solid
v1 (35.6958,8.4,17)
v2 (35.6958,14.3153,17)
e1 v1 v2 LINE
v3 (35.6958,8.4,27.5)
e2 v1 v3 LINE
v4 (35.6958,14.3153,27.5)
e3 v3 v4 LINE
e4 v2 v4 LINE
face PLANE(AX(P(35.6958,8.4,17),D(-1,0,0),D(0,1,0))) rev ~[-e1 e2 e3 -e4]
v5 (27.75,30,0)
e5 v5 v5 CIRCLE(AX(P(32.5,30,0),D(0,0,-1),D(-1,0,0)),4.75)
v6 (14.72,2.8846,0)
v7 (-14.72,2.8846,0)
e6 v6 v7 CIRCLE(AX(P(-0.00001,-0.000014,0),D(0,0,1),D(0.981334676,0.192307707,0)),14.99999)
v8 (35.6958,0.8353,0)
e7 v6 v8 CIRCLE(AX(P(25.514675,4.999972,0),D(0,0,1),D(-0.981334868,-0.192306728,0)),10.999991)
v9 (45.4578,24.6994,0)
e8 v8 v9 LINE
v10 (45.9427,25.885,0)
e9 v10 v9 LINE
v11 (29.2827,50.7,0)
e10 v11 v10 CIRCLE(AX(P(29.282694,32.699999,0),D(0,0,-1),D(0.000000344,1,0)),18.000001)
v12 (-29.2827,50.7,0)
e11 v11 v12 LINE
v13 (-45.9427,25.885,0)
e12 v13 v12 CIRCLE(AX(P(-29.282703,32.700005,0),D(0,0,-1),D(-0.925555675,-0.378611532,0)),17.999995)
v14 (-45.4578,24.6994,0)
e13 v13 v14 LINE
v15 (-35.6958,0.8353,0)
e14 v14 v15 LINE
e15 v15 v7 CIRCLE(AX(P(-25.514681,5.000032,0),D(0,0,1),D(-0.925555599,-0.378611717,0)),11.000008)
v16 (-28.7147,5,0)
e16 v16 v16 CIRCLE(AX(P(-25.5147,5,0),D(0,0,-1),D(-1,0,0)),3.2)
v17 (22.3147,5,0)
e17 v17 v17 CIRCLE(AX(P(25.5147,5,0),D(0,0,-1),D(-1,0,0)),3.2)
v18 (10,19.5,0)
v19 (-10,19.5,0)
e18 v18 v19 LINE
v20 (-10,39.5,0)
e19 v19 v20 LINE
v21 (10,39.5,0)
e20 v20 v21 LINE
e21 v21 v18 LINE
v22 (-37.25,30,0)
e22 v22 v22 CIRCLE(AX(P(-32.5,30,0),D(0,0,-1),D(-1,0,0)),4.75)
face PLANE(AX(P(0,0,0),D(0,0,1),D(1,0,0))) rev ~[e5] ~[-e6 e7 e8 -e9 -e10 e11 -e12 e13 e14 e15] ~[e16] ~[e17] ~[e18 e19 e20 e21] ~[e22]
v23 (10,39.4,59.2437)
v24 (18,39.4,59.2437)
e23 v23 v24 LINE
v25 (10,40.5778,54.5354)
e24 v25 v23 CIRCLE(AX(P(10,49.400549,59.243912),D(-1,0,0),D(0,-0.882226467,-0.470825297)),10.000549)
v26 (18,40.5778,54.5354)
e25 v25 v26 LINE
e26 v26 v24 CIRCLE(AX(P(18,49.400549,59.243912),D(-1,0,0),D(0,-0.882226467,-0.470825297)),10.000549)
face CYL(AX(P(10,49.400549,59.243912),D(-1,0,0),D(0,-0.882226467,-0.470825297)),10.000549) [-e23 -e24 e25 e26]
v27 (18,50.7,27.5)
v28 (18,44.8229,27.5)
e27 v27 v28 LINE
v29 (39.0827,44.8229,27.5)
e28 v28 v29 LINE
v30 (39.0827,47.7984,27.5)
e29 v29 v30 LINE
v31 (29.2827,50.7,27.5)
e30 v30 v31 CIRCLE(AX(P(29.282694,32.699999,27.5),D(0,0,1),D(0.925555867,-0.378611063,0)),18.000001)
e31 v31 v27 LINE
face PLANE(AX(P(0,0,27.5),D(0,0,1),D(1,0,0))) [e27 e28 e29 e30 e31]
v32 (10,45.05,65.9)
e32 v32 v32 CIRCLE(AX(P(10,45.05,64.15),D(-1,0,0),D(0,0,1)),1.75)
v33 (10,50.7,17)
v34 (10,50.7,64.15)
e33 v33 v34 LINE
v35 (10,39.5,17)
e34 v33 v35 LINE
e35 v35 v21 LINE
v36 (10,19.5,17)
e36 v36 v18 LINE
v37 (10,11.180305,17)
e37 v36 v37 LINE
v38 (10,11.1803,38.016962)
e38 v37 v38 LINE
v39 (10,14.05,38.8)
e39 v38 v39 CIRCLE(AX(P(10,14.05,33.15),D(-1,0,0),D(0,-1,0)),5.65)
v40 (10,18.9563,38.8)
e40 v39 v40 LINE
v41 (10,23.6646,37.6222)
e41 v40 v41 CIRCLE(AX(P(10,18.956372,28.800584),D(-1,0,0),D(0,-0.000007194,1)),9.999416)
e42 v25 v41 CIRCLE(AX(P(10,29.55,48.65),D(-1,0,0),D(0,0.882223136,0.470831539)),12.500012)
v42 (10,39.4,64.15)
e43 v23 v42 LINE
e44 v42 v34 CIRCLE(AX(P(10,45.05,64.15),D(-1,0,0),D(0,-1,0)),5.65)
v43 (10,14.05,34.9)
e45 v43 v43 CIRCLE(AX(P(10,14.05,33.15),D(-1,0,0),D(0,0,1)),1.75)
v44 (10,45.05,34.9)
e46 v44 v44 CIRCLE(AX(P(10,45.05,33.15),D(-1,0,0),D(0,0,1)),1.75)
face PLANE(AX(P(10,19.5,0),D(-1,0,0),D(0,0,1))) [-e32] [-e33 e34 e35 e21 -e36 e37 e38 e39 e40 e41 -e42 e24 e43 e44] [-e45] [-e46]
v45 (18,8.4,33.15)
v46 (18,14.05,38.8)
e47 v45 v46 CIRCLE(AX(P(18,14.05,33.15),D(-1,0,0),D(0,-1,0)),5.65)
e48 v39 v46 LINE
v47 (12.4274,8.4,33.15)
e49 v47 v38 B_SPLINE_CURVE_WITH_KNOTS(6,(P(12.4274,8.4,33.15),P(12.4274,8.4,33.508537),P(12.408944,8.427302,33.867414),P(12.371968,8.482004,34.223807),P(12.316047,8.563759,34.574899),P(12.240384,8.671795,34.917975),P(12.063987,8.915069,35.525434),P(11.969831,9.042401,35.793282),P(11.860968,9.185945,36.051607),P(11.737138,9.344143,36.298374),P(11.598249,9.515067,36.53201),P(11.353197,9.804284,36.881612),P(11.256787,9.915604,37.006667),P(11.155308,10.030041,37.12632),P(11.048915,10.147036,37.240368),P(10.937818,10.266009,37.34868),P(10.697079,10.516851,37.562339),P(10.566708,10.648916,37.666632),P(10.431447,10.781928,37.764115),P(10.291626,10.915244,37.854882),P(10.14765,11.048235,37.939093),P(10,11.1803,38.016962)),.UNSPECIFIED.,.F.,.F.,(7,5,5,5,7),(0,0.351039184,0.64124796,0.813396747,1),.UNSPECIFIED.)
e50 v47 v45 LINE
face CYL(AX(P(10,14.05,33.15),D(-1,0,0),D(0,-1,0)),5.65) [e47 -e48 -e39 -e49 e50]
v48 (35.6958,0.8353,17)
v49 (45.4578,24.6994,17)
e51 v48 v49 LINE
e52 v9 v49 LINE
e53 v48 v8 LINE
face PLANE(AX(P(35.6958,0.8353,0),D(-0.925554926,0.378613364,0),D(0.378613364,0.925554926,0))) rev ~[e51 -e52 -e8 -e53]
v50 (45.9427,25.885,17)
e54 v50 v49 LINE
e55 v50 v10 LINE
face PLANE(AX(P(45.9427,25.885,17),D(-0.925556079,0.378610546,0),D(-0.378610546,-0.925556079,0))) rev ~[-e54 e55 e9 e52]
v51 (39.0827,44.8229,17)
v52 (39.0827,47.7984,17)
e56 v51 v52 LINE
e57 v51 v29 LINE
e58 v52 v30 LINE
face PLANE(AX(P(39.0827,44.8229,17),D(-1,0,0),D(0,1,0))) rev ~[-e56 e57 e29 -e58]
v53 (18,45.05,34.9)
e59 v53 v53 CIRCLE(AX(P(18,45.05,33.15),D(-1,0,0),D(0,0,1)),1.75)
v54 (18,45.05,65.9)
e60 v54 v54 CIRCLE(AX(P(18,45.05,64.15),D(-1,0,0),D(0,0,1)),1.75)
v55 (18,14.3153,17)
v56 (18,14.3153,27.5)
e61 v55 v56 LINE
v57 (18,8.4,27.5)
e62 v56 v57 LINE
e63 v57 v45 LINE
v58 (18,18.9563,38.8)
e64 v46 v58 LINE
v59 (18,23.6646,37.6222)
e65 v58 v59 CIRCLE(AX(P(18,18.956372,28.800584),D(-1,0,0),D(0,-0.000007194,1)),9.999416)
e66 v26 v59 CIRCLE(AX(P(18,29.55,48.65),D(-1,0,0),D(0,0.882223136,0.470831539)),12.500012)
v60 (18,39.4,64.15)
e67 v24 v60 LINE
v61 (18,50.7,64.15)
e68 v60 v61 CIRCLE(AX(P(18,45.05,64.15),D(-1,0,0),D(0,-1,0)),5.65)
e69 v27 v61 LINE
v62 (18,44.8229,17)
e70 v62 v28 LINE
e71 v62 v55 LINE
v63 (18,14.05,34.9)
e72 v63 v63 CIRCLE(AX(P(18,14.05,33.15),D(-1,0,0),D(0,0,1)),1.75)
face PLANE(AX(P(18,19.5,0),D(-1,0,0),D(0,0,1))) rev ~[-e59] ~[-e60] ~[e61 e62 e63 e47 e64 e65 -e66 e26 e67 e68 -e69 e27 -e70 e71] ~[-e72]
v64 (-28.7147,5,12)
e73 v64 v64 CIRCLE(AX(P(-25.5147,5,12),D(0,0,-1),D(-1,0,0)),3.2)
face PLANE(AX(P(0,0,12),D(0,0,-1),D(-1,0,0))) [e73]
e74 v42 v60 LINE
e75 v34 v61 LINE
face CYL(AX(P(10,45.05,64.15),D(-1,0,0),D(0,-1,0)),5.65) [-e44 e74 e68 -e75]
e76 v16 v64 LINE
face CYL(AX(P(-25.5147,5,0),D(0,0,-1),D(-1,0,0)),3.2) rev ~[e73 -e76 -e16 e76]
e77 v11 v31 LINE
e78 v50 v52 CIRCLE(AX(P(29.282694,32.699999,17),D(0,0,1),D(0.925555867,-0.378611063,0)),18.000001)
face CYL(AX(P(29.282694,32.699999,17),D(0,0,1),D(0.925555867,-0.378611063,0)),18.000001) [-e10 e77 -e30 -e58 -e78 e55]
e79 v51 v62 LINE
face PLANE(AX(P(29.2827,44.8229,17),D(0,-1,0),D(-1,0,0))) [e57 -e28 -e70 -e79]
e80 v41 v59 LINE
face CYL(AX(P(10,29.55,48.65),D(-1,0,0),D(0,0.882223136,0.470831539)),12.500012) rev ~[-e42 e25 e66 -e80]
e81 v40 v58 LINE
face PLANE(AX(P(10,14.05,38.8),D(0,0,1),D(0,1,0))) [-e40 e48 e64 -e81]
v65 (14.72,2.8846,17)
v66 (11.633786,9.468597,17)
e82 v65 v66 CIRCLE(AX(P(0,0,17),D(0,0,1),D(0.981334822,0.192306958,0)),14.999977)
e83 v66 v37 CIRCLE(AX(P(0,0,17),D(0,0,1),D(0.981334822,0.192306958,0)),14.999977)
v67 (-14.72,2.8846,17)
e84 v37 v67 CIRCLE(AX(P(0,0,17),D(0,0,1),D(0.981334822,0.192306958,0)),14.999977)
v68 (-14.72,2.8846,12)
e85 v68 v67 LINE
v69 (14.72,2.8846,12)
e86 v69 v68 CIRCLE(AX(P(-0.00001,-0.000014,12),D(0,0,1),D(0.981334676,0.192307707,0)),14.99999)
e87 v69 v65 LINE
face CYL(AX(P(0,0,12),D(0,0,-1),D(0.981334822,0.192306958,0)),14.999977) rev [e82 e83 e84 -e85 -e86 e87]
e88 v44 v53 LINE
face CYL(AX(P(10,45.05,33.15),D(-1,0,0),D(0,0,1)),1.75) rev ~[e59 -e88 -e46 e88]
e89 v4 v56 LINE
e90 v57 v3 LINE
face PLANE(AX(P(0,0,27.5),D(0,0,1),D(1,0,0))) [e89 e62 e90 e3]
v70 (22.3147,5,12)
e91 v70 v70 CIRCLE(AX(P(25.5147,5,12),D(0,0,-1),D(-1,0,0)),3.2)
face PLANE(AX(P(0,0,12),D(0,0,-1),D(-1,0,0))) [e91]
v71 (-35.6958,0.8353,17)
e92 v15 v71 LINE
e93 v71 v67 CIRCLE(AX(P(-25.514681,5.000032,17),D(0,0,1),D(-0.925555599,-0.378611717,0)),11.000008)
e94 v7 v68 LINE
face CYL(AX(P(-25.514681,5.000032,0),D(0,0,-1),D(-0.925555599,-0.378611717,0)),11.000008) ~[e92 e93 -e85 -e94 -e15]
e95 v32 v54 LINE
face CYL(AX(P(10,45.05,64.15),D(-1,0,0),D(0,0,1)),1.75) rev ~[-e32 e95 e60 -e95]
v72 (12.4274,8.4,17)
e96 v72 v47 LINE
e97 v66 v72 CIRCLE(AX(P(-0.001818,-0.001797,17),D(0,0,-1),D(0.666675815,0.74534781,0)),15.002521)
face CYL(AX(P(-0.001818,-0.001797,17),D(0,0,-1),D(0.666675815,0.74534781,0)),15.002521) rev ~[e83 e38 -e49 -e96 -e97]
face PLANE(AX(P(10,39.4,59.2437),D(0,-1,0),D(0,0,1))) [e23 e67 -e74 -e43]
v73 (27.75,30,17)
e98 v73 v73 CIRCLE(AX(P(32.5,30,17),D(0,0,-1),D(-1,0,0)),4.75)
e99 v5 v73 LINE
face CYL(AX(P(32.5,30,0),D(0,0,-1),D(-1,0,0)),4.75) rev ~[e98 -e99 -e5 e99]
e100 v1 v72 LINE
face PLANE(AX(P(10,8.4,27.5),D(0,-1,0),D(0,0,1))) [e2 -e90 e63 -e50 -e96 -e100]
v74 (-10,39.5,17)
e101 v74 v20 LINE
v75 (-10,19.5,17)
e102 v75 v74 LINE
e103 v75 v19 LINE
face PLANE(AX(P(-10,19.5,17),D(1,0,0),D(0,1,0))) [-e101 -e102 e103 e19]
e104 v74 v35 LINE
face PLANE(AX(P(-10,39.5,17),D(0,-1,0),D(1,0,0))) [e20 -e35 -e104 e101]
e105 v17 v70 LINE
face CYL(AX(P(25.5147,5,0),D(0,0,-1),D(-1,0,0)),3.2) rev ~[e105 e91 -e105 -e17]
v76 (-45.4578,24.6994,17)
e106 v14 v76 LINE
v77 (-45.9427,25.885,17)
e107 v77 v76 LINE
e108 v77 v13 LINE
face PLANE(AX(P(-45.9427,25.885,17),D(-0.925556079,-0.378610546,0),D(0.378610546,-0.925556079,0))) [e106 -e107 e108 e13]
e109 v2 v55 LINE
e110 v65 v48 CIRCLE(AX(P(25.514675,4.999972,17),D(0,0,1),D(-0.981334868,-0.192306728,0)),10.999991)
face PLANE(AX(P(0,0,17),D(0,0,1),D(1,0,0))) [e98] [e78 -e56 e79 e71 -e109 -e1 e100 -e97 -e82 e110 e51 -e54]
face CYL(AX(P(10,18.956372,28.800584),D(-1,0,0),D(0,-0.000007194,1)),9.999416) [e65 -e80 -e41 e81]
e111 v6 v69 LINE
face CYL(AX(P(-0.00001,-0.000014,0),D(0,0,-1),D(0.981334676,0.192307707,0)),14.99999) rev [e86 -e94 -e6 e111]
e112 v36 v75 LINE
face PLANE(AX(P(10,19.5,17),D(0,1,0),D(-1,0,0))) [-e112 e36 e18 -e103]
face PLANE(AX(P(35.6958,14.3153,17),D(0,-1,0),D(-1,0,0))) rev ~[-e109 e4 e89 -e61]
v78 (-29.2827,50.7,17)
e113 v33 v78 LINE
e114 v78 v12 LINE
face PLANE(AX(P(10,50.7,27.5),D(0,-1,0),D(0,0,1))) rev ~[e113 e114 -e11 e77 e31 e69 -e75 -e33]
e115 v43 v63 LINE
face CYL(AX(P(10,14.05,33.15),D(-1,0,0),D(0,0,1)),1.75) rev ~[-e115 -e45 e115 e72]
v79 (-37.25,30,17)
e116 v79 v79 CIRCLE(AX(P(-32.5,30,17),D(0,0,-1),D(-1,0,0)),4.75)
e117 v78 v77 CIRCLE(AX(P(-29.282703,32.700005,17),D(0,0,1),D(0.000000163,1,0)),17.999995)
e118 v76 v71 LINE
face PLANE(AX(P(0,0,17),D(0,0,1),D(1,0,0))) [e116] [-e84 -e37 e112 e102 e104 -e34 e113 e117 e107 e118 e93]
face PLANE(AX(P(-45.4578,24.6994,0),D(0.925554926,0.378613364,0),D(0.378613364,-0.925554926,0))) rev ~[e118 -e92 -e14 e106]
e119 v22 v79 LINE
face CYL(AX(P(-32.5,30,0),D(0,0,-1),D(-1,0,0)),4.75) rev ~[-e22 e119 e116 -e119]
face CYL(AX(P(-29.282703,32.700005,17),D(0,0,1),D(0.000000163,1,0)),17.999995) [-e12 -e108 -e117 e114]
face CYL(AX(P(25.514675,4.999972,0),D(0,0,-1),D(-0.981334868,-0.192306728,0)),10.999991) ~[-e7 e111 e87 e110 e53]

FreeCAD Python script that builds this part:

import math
import FreeCAD as App
import Part
import Sketcher
from FreeCAD import Vector

doc = App.newDocument("Part")
body = doc.addObject("PartDesign::Body", "Body")

# Sketch on XY plane
sketch1 = body.newObject("Sketcher::SketchObject", "Sketch")
sketch1.AttachmentSupport = (doc.getObject("XY_Plane"), [""])
sketch1.MapMode = "FlatFace"
sketch1.addGeometry([
    Part.LineSegment(Vector(35.7, 0.8, 0), Vector(45.5, 24.7, 0)),  # 0
    Part.ArcOfCircle(Part.Circle(Vector(32.5, 30, 0), Vector(0, 0, 1), 14), math.radians(-22), math.radians(90)),  # 1
    Part.LineSegment(Vector(32.5, 44, 0), Vector(-32.5, 44, 0)),  # 2
    Part.ArcOfCircle(Part.Circle(Vector(-32.5, 30, 0), Vector(0, 0, 1), 14), math.radians(90), math.radians(202)),  # 3
    Part.LineSegment(Vector(-45.5, 24.7, 0), Vector(-35.7, 0.8, 0)),  # 4
    Part.ArcOfCircle(Part.Circle(Vector(-25.5, 5, 0), Vector(0, 0, 1), 11), math.radians(-158), math.radians(-11)),  # 5
    Part.ArcOfCircle(Part.Circle(Vector(0, 0, 0), Vector(0, 0, 1), 15), math.radians(11), math.radians(169)),  # 6
    Part.ArcOfCircle(Part.Circle(Vector(25.5, 5, 0), Vector(0, 0, 1), 11), math.radians(-169), math.radians(-22)),  # 7
    Part.Circle(Vector(-32.5, 30, 0), Vector(0, 0, 1), 5),  # 8
    Part.Circle(Vector(32.5, 30, 0), Vector(0, 0, 1), 5),  # 9
    Part.Circle(Vector(-25.5, 5, 0), Vector(0, 0, 1), 3),  # 10
    Part.Circle(Vector(25.5, 5, 0), Vector(0, 0, 1), 3),  # 11
], False)
sketch1.addConstraint([
    Sketcher.Constraint("Tangent", 0, 2, 1, 1),
    Sketcher.Constraint("Tangent", 1, 2, 2, 1),
    Sketcher.Constraint("Tangent", 2, 2, 3, 1),
    Sketcher.Constraint("Tangent", 3, 2, 4, 1),
    Sketcher.Constraint("Tangent", 4, 2, 5, 1),
    Sketcher.Constraint("Tangent", 5, 2, 6, 2),
    Sketcher.Constraint("Tangent", 6, 1, 7, 1),
    Sketcher.Constraint("Tangent", 7, 2, 0, 1),
    Sketcher.Constraint("Horizontal", 2),
    Sketcher.Constraint("Coincident", 6, 3, -1, 1),
    Sketcher.Constraint("Coincident", 8, 3, 3, 3),
    Sketcher.Constraint("Coincident", 9, 3, 1, 3),
    Sketcher.Constraint("Coincident", 10, 3, 5, 3),
    Sketcher.Constraint("Coincident", 11, 3, 7, 3),
    Sketcher.Constraint("Equal", 1, 3),
    Sketcher.Constraint("Equal", 5, 7),
    Sketcher.Constraint("Equal", 8, 9),
    Sketcher.Constraint("Equal", 10, 11),
    Sketcher.Constraint("Symmetric", 0, 2, 3, 2, -2),
    Sketcher.Constraint("Diameter", 8, 10.0),
    Sketcher.Constraint("Diameter", 10, 6.0),
    Sketcher.Constraint("Radius", 1, 14.0),
    Sketcher.Constraint("Radius", 6, 15.0),
    Sketcher.Constraint("DistanceX", 2, 2, 2, 1, 65.0),
    Sketcher.Constraint("DistanceY", -1, 1, 1, 3, 30.0),
    Sketcher.Constraint("Radius", 5, 11.0),
    Sketcher.Constraint("DistanceY", -1, 1, 5, 3, 5.0),
])
pad1 = body.newObject("PartDesign::Pad", "Pad")
pad1.Profile = sketch1
pad1.Length = 12

# Sketch on XY plane
sketch2 = body.newObject("Sketcher::SketchObject", "Sketch001")
sketch2.AttachmentSupport = (doc.getObject("XY_Plane"), [""])
sketch2.MapMode = "FlatFace"
sketch2.AttachmentOffset = App.Placement(Vector(0, 0, 12), App.Rotation())
sketch2.addGeometry([
    Part.ArcOfCircle(Part.Circle(Vector(-32, 30, 0), Vector(0, 0, 1), 14), math.radians(90), math.radians(202)),  # 0
    Part.LineSegment(Vector(-45, 25, 0), Vector(-36, 1, 0)),  # 1
    Part.ArcOfCircle(Part.Circle(Vector(-26, 5, 0), Vector(0, 0, 1), 11), math.radians(-158), math.radians(-11)),  # 2
    Part.ArcOfCircle(Part.Circle(Vector(0, 0, 0), Vector(0, 0, 1), 15), math.radians(11), math.radians(169)),  # 3
    Part.ArcOfCircle(Part.Circle(Vector(26, 5, 0), Vector(0, 0, 1), 11), math.radians(-169), math.radians(-22)),  # 4
    Part.LineSegment(Vector(36, 1, 0), Vector(45, 25, 0)),  # 5
    Part.ArcOfCircle(Part.Circle(Vector(32, 30, 0), Vector(0, 0, 1), 14), math.radians(-22), math.radians(90)),  # 6
    Part.LineSegment(Vector(32, 44, 0), Vector(-32, 44, 0)),  # 7
    Part.Circle(Vector(32, 30, 0), Vector(0, 0, 1), 5),  # 8
    Part.Circle(Vector(-32, 30, 0), Vector(0, 0, 1), 5),  # 9
], False)
sketch2.addConstraint([
    Sketcher.Constraint("Tangent", 0, 2, 1, 1),
    Sketcher.Constraint("Tangent", 1, 2, 2, 1),
    Sketcher.Constraint("Tangent", 2, 2, 3, 2),
    Sketcher.Constraint("Tangent", 3, 1, 4, 1),
    Sketcher.Constraint("Tangent", 4, 2, 5, 1),
    Sketcher.Constraint("Tangent", 5, 2, 6, 1),
    Sketcher.Constraint("Tangent", 6, 2, 7, 1),
    Sketcher.Constraint("Tangent", 7, 2, 0, 1),
    Sketcher.Constraint("Horizontal", 7),
    Sketcher.Constraint("Coincident", 3, 3, -1, 1),
    Sketcher.Constraint("Coincident", 8, 3, 6, 3),
    Sketcher.Constraint("Coincident", 9, 3, 0, 3),
    Sketcher.Constraint("Equal", 2, 4),
    Sketcher.Constraint("Equal", 0, 6),
    Sketcher.Constraint("Equal", 8, 9),
    Sketcher.Constraint("Symmetric", 1, 2, 4, 2, -2),
    Sketcher.Constraint("Diameter", 8, 10.0),
    Sketcher.Constraint("Radius", 0, 14.0),
    Sketcher.Constraint("Radius", 2, 11.0),
    Sketcher.Constraint("Radius", 3, 15.0),
    Sketcher.Constraint("DistanceX", 7, 2, 7, 1, 65.0),
    Sketcher.Constraint("DistanceY", -1, 1, 0, 3, 30.0),
    Sketcher.Constraint("DistanceY", -1, 1, 2, 3, 5.0),
])
pad2 = body.newObject("PartDesign::Pad", "Pad001")
pad2.Profile = sketch2
pad2.Length = 5

# Sketch on XY plane
sketch3 = body.newObject("Sketcher::SketchObject", "Sketch002")
sketch3.AttachmentSupport = (doc.getObject("XY_Plane"), [""])
sketch3.MapMode = "FlatFace"
sketch3.AttachmentOffset = App.Placement(Vector(0, 0, 17), App.Rotation())
sketch3.addGeometry([
    Part.LineSegment(Vector(10, 40, 0), Vector(-10, 40, 0)),
    Part.LineSegment(Vector(-10, 40, 0), Vector(-10, 20, 0)),
    Part.LineSegment(Vector(-10, 20, 0), Vector(10, 20, 0)),
    Part.LineSegment(Vector(10, 20, 0), Vector(10, 40, 0)),
], False)
sketch3.addConstraint([
    Sketcher.Constraint("Coincident", 0, 2, 1, 1),
    Sketcher.Constraint("Coincident", 1, 2, 2, 1),
    Sketcher.Constraint("Coincident", 2, 2, 3, 1),
    Sketcher.Constraint("Coincident", 3, 2, 0, 1),
    Sketcher.Constraint("Horizontal", 0),
    Sketcher.Constraint("Vertical", 1),
    Sketcher.Constraint("Horizontal", 2),
    Sketcher.Constraint("Vertical", 3),
    Sketcher.Constraint("Equal", 2, 1),
    Sketcher.Constraint("DistanceX", 0, 2, 0, 1, 20.0),
    Sketcher.Constraint("DistanceX", 0, 2, -1, 1, 10.0),
    Sketcher.Constraint("DistanceY", -1, 1, 0, 2, 39.5),
])
pocket1 = body.newObject("PartDesign::Pocket", "Pocket")
pocket1.Profile = sketch3
pocket1.Length = 17

# Sketch on XY plane
sketch4 = body.newObject("Sketcher::SketchObject", "Sketch003")
sketch4.AttachmentSupport = (doc.getObject("XY_Plane"), [""])
sketch4.MapMode = "FlatFace"
sketch4.AttachmentOffset = App.Placement(Vector(0, 0, 17), App.Rotation())
sketch4.addGeometry([
    Part.LineSegment(Vector(-45.9, 25.9, 0), Vector(-45.5, 24.7, 0)),  # 0
    Part.ArcOfCircle(Part.Circle(Vector(-32.5, 30, 0), Vector(0, 0, 1), 14), math.radians(90), math.radians(202)),  # 1
    Part.LineSegment(Vector(-32.5, 44, 0), Vector(32.5, 44, 0)),  # 2
    Part.ArcOfCircle(Part.Circle(Vector(32.5, 30, 0), Vector(0, 0, 1), 14), math.radians(-22), math.radians(90)),  # 3
    Part.LineSegment(Vector(45.5, 24.7, 0), Vector(45.9, 25.9, 0)),  # 4
    Part.ArcOfCircle(Part.Circle(Vector(29.3, 32.7, 0), Vector(0, 0, 1), 18), math.radians(-22), math.radians(90)),  # 5
    Part.LineSegment(Vector(29.3, 50.7, 0), Vector(-29.3, 50.7, 0)),  # 6
    Part.ArcOfCircle(Part.Circle(Vector(-29.3, 32.7, 0), Vector(0, 0, 1), 18), math.radians(90), math.radians(202)),  # 7
], False)
sketch4.addConstraint([
    Sketcher.Constraint("Tangent", 0, 2, 1, 2),
    Sketcher.Constraint("Tangent", 1, 1, 2, 1),
    Sketcher.Constraint("Tangent", 2, 2, 3, 2),
    Sketcher.Constraint("Tangent", 3, 1, 4, 1),
    Sketcher.Constraint("Tangent", 4, 2, 5, 1),
    Sketcher.Constraint("Tangent", 5, 2, 6, 1),
    Sketcher.Constraint("Tangent", 6, 2, 7, 1),
    Sketcher.Constraint("Tangent", 7, 2, 0, 1),
    Sketcher.Constraint("Horizontal", 2),
    Sketcher.Constraint("Horizontal", 6),
    Sketcher.Constraint("Equal", 1, 3),
    Sketcher.Constraint("Equal", 5, 7),
    Sketcher.Constraint("Symmetric", 0, 2, 3, 1, -2),
    Sketcher.Constraint("Radius", 5, 18.0),
    Sketcher.Constraint("Radius", 1, 14.0),
    Sketcher.Constraint("DistanceY", 2, 2, 5, 2, 6.7),
    Sketcher.Constraint("DistanceX", 2, 1, 2, 2, 65.0),
    Sketcher.Constraint("DistanceY", -1, 1, 1, 3, 30.0),
    Sketcher.Constraint("DistanceX", 5, 3, 4, 2, 16.66),
])
pad3 = body.newObject("PartDesign::Pad", "Pad002")
pad3.Profile = sketch4
pad3.Length = 17
pad3.Reversed = True

# Sketch on XY plane
sketch5 = body.newObject("Sketcher::SketchObject", "Sketch004")
sketch5.AttachmentSupport = (doc.getObject("XY_Plane"), [""])
sketch5.MapMode = "FlatFace"
sketch5.AttachmentOffset = App.Placement(Vector(0, 0, 17), App.Rotation())
sketch5.addGeometry([
    Part.LineSegment(Vector(10, 8.4, 0), Vector(35.7, 8.4, 0)),  # 0
    Part.LineSegment(Vector(35.7, 8.4, 0), Vector(35.7, 14.3, 0)),  # 1
    Part.LineSegment(Vector(35.7, 14.3, 0), Vector(18, 14.3, 0)),  # 2
    Part.LineSegment(Vector(18, 14.3, 0), Vector(18, 44.8, 0)),  # 3
    Part.LineSegment(Vector(18, 44.8, 0), Vector(39.1, 44.8, 0)),  # 4
    Part.LineSegment(Vector(39.1, 44.8, 0), Vector(39.1, 47.8, 0)),  # 5
    Part.ArcOfCircle(Part.Circle(Vector(29.3, 32.7, 0), Vector(0, 0, 1), 18), math.radians(57), math.radians(90)),  # 6
    Part.LineSegment(Vector(29.3, 50.7, 0), Vector(10, 50.7, 0)),  # 7
    Part.LineSegment(Vector(10, 50.7, 0), Vector(10, 8.4, 0)),  # 8
], False)
sketch5.addConstraint([
    Sketcher.Constraint("Coincident", 0, 2, 1, 1),
    Sketcher.Constraint("Coincident", 1, 2, 2, 1),
    Sketcher.Constraint("Coincident", 2, 2, 3, 1),
    Sketcher.Constraint("Coincident", 3, 2, 4, 1),
    Sketcher.Constraint("Coincident", 4, 2, 5, 1),
    Sketcher.Constraint("Coincident", 5, 2, 6, 1),
    Sketcher.Constraint("Tangent", 6, 2, 7, 1),
    Sketcher.Constraint("Coincident", 7, 2, 8, 1),
    Sketcher.Constraint("Coincident", 8, 2, 0, 1),
    Sketcher.Constraint("Horizontal", 0),
    Sketcher.Constraint("Vertical", 1),
    Sketcher.Constraint("Horizontal", 2),
    Sketcher.Constraint("Vertical", 3),
    Sketcher.Constraint("Horizontal", 4),
    Sketcher.Constraint("Vertical", 5),
    Sketcher.Constraint("Horizontal", 7),
    Sketcher.Constraint("Vertical", 8),
    Sketcher.Constraint("DistanceY", 8, 2, 8, 1, 42.3),
    Sketcher.Constraint("Radius", 6, 18.0),
    Sketcher.Constraint("DistanceX", 7, 2, 3, 2, 8.0),
    Sketcher.Constraint("DistanceX", -1, 1, 2, 2, 18.0),
    Sketcher.Constraint("DistanceY", -1, 1, 6, 3, 32.7),
    Sketcher.Constraint("DistanceX", 6, 3, 4, 2, 9.8),
    Sketcher.Constraint("DistanceX", 0, 1, 0, 2, 25.6958),
    Sketcher.Constraint("DistanceX", 4, 1, 4, 2, 21.0827),
    Sketcher.Constraint("DistanceY", 1, 1, 1, 2, 5.9153),
    Sketcher.Constraint("DistanceY", 3, 1, 3, 2, 30.5076),
])
pad4 = body.newObject("PartDesign::Pad", "Pad003")
pad4.Profile = sketch5
pad4.Length = 10.5

# Sketch on YZ plane
sketch6 = body.newObject("Sketcher::SketchObject", "Sketch005")
sketch6.AttachmentSupport = (doc.getObject("YZ_Plane"), [""])
sketch6.MapMode = "FlatFace"
sketch6.AttachmentOffset = App.Placement(Vector(0, 0, 10), App.Rotation())
sketch6.addGeometry([
    Part.LineSegment(Vector(50.7, 64.2, 0), Vector(50.7, 27.5, 0)),  # 0
    Part.LineSegment(Vector(50.7, 27.5, 0), Vector(8.4, 27.5, 0)),  # 1
    Part.LineSegment(Vector(8.4, 27.5, 0), Vector(8.4, 33.1, 0)),  # 2
    Part.ArcOfCircle(Part.Circle(Vector(14.1, 33.1, 0), Vector(0, 0, 1), 5.6), math.radians(90), math.radians(180)),  # 3
    Part.LineSegment(Vector(14.1, 38.8, 0), Vector(19, 38.8, 0)),  # 4
    Part.ArcOfCircle(Part.Circle(Vector(19, 28.8, 0), Vector(0, 0, 1), 10), math.radians(62), math.radians(90)),  # 5
    Part.ArcOfCircle(Part.Circle(Vector(29.6, 48.6, 0), Vector(0, 0, 1), 12.5), math.radians(-118), math.radians(28)),  # 6
    Part.ArcOfCircle(Part.Circle(Vector(49.4, 59.2, 0), Vector(0, 0, 1), 10), math.radians(180), math.radians(208)),  # 7
    Part.LineSegment(Vector(39.4, 59.2, 0), Vector(39.4, 64.2, 0)),  # 8
    Part.ArcOfCircle(Part.Circle(Vector(45, 64.2, 0), Vector(0, 0, 1), 5.7), math.radians(0), math.radians(180)),  # 9
    Part.Circle(Vector(14.1, 33.1, 0), Vector(0, 0, 1), 1.8),  # 10
    Part.Circle(Vector(45, 33.1, 0), Vector(0, 0, 1), 1.8),  # 11
    Part.Circle(Vector(45, 64.2, 0), Vector(0, 0, 1), 1.8),  # 12
], False)
sketch6.addConstraint([
    Sketcher.Constraint("Coincident", 0, 2, 1, 1),
    Sketcher.Constraint("Coincident", 1, 2, 2, 1),
    Sketcher.Constraint("Tangent", 2, 2, 3, 2),
    Sketcher.Constraint("Tangent", 3, 1, 4, 1),
    Sketcher.Constraint("Tangent", 4, 2, 5, 2),
    Sketcher.Constraint("Tangent", 5, 1, 6, 1),
    Sketcher.Constraint("Tangent", 6, 2, 7, 2),
    Sketcher.Constraint("Tangent", 7, 1, 8, 1),
    Sketcher.Constraint("Tangent", 8, 2, 9, 2),
    Sketcher.Constraint("Tangent", 9, 1, 0, 1),
    Sketcher.Constraint("Vertical", 0),
    Sketcher.Constraint("Horizontal", 1),
    Sketcher.Constraint("Vertical", 2),
    Sketcher.Constraint("Horizontal", 4),
    Sketcher.Constraint("Vertical", 8),
    Sketcher.Constraint("Coincident", 10, 3, 3, 3),
    Sketcher.Constraint("Coincident", 12, 3, 9, 3),
    Sketcher.Constraint("Equal", 5, 7),
    Sketcher.Constraint("Equal", 3, 9),
    Sketcher.Constraint("Equal", 10, 11),
    Sketcher.Constraint("Equal", 11, 12),
    Sketcher.Constraint("Horizontal", 10, 3, 11, 3),
    Sketcher.Constraint("Vertical", 9, 3, 11, 3),
    Sketcher.Constraint("Equal", 4, 8),
    Sketcher.Constraint("Radius", 5, 10.0),
    Sketcher.Constraint("Diameter", 10, 3.5),
    Sketcher.Constraint("Radius", 6, 12.5),
    Sketcher.Constraint("Radius", 3, 5.65),
    Sketcher.Constraint("DistanceX", 1, 2, 1, 1, 42.3),
    Sketcher.Constraint("DistanceY", 3, 3, 9, 3, 31.0),
    Sketcher.Constraint("DistanceY", 2, 1, 2, 2, 5.65),
    Sketcher.Constraint("DistanceX", 6, 3, 0, 2, 21.15),
    Sketcher.Constraint("DistanceY", -1, 1, 5, 3, 28.8),
    Sketcher.Constraint("DistanceX", -1, 1, 7, 3, 49.4),
])
pad5 = body.newObject("PartDesign::Pad", "Pad004")
pad5.Profile = sketch6
pad5.Length = 8

# Sketch on XY plane
sketch7 = body.newObject("Sketcher::SketchObject", "Sketch006")
sketch7.AttachmentSupport = (doc.getObject("XY_Plane"), [""])
sketch7.MapMode = "FlatFace"
sketch7.AttachmentOffset = App.Placement(Vector(0, 0, 17), App.Rotation())
sketch7.addGeometry([
    Part.LineSegment(Vector(10, 8.4, 0), Vector(10, 11.2, 0)),
    Part.ArcOfCircle(Part.Circle(Vector(0, 0, 0), Vector(0, 0, 1), 15), math.radians(34.06), math.radians(48.19)),
    Part.LineSegment(Vector(12.4, 8.4, 0), Vector(10, 8.4, 0)),
], False)
sketch7.addConstraint([
    Sketcher.Constraint("Coincident", 0, 2, 1, 2),
    Sketcher.Constraint("Coincident", 1, 1, 2, 1),
    Sketcher.Constraint("Coincident", 2, 2, 0, 1),
    Sketcher.Constraint("Vertical", 0),
    Sketcher.Constraint("Horizontal", 2),
    Sketcher.Constraint("DistanceX", -1, 1, 0, 2, 10.0),
    Sketcher.Constraint("DistanceY", -1, 1, 1, 1, 8.4),
    Sketcher.Constraint("Radius", 1, 15.0025),
    Sketcher.Constraint("DistanceX", 2, 2, 2, 1, 2.4274),
    Sketcher.Constraint("DistanceY", 0, 1, 0, 2, 2.7803),
])
pocket2 = body.newObject("PartDesign::Pocket", "Pocket001")
pocket2.Profile = sketch7
pocket2.Length = 41.25
pocket2.Reversed = True

# Sketch on XY plane
sketch8 = body.newObject("Sketcher::SketchObject", "Sketch007")
sketch8.AttachmentSupport = (doc.getObject("XY_Plane"), [""])
sketch8.MapMode = "FlatFace"
sketch8.addGeometry([
    Part.Circle(Vector(-32.5, 30, 0), Vector(0, 0, 1), 5),
    Part.Circle(Vector(-32.5, 30, 0), Vector(0, 0, 1), 4.8),
    Part.Circle(Vector(32.5, 30, 0), Vector(0, 0, 1), 5),
    Part.Circle(Vector(32.5, 30, 0), Vector(0, 0, 1), 4.8),
], False)
sketch8.addConstraint([
    Sketcher.Constraint("Coincident", 1, 3, 0, 3),
    Sketcher.Constraint("Coincident", 3, 3, 2, 3),
    Sketcher.Constraint("Equal", 0, 2),
    Sketcher.Constraint("Equal", 1, 3),
    Sketcher.Constraint("Symmetric", 0, 3, 2, 3, -2),
    Sketcher.Constraint("Diameter", 0, 10.0),
    Sketcher.Constraint("Diameter", 1, 9.5),
    Sketcher.Constraint("DistanceY", -1, 1, 0, 3, 30.0),
    Sketcher.Constraint("DistanceX", 0, 3, 2, 3, 65.0),
])
pad6 = body.newObject("PartDesign::Pad", "Pad005")
pad6.Profile = sketch8
pad6.Length = 17

# Sketch on XY plane
sketch9 = body.newObject("Sketcher::SketchObject", "Sketch008")
sketch9.AttachmentSupport = (doc.getObject("XY_Plane"), [""])
sketch9.MapMode = "FlatFace"
sketch9.addGeometry([
    Part.Circle(Vector(-25.5, 5, 0), Vector(0, 0, 1), 3.2),
    Part.Circle(Vector(-25.5, 5, 0), Vector(0, 0, 1), 3),
    Part.Circle(Vector(25.5, 5, 0), Vector(0, 0, 1), 3.2),
    Part.Circle(Vector(25.5, 5, 0), Vector(0, 0, 1), 3),
], False)
sketch9.addConstraint([
    Sketcher.Constraint("Coincident", 1, 3, 0, 3),
    Sketcher.Constraint("Coincident", 3, 3, 2, 3),
    Sketcher.Constraint("Equal", 0, 2),
    Sketcher.Constraint("Equal", 1, 3),
    Sketcher.Constraint("Symmetric", 0, 3, 2, 3, -2),
    Sketcher.Constraint("Diameter", 0, 6.4),
    Sketcher.Constraint("Diameter", 1, 6.0),
    Sketcher.Constraint("DistanceY", -1, 1, 0, 3, 5.0),
    Sketcher.Constraint("DistanceX", 0, 3, -1, 1, 25.5147),
])
pocket3 = body.newObject("PartDesign::Pocket", "Pocket002")
pocket3.Profile = sketch9
pocket3.Length = 12
pocket3.Reversed = True

doc.recompute()
